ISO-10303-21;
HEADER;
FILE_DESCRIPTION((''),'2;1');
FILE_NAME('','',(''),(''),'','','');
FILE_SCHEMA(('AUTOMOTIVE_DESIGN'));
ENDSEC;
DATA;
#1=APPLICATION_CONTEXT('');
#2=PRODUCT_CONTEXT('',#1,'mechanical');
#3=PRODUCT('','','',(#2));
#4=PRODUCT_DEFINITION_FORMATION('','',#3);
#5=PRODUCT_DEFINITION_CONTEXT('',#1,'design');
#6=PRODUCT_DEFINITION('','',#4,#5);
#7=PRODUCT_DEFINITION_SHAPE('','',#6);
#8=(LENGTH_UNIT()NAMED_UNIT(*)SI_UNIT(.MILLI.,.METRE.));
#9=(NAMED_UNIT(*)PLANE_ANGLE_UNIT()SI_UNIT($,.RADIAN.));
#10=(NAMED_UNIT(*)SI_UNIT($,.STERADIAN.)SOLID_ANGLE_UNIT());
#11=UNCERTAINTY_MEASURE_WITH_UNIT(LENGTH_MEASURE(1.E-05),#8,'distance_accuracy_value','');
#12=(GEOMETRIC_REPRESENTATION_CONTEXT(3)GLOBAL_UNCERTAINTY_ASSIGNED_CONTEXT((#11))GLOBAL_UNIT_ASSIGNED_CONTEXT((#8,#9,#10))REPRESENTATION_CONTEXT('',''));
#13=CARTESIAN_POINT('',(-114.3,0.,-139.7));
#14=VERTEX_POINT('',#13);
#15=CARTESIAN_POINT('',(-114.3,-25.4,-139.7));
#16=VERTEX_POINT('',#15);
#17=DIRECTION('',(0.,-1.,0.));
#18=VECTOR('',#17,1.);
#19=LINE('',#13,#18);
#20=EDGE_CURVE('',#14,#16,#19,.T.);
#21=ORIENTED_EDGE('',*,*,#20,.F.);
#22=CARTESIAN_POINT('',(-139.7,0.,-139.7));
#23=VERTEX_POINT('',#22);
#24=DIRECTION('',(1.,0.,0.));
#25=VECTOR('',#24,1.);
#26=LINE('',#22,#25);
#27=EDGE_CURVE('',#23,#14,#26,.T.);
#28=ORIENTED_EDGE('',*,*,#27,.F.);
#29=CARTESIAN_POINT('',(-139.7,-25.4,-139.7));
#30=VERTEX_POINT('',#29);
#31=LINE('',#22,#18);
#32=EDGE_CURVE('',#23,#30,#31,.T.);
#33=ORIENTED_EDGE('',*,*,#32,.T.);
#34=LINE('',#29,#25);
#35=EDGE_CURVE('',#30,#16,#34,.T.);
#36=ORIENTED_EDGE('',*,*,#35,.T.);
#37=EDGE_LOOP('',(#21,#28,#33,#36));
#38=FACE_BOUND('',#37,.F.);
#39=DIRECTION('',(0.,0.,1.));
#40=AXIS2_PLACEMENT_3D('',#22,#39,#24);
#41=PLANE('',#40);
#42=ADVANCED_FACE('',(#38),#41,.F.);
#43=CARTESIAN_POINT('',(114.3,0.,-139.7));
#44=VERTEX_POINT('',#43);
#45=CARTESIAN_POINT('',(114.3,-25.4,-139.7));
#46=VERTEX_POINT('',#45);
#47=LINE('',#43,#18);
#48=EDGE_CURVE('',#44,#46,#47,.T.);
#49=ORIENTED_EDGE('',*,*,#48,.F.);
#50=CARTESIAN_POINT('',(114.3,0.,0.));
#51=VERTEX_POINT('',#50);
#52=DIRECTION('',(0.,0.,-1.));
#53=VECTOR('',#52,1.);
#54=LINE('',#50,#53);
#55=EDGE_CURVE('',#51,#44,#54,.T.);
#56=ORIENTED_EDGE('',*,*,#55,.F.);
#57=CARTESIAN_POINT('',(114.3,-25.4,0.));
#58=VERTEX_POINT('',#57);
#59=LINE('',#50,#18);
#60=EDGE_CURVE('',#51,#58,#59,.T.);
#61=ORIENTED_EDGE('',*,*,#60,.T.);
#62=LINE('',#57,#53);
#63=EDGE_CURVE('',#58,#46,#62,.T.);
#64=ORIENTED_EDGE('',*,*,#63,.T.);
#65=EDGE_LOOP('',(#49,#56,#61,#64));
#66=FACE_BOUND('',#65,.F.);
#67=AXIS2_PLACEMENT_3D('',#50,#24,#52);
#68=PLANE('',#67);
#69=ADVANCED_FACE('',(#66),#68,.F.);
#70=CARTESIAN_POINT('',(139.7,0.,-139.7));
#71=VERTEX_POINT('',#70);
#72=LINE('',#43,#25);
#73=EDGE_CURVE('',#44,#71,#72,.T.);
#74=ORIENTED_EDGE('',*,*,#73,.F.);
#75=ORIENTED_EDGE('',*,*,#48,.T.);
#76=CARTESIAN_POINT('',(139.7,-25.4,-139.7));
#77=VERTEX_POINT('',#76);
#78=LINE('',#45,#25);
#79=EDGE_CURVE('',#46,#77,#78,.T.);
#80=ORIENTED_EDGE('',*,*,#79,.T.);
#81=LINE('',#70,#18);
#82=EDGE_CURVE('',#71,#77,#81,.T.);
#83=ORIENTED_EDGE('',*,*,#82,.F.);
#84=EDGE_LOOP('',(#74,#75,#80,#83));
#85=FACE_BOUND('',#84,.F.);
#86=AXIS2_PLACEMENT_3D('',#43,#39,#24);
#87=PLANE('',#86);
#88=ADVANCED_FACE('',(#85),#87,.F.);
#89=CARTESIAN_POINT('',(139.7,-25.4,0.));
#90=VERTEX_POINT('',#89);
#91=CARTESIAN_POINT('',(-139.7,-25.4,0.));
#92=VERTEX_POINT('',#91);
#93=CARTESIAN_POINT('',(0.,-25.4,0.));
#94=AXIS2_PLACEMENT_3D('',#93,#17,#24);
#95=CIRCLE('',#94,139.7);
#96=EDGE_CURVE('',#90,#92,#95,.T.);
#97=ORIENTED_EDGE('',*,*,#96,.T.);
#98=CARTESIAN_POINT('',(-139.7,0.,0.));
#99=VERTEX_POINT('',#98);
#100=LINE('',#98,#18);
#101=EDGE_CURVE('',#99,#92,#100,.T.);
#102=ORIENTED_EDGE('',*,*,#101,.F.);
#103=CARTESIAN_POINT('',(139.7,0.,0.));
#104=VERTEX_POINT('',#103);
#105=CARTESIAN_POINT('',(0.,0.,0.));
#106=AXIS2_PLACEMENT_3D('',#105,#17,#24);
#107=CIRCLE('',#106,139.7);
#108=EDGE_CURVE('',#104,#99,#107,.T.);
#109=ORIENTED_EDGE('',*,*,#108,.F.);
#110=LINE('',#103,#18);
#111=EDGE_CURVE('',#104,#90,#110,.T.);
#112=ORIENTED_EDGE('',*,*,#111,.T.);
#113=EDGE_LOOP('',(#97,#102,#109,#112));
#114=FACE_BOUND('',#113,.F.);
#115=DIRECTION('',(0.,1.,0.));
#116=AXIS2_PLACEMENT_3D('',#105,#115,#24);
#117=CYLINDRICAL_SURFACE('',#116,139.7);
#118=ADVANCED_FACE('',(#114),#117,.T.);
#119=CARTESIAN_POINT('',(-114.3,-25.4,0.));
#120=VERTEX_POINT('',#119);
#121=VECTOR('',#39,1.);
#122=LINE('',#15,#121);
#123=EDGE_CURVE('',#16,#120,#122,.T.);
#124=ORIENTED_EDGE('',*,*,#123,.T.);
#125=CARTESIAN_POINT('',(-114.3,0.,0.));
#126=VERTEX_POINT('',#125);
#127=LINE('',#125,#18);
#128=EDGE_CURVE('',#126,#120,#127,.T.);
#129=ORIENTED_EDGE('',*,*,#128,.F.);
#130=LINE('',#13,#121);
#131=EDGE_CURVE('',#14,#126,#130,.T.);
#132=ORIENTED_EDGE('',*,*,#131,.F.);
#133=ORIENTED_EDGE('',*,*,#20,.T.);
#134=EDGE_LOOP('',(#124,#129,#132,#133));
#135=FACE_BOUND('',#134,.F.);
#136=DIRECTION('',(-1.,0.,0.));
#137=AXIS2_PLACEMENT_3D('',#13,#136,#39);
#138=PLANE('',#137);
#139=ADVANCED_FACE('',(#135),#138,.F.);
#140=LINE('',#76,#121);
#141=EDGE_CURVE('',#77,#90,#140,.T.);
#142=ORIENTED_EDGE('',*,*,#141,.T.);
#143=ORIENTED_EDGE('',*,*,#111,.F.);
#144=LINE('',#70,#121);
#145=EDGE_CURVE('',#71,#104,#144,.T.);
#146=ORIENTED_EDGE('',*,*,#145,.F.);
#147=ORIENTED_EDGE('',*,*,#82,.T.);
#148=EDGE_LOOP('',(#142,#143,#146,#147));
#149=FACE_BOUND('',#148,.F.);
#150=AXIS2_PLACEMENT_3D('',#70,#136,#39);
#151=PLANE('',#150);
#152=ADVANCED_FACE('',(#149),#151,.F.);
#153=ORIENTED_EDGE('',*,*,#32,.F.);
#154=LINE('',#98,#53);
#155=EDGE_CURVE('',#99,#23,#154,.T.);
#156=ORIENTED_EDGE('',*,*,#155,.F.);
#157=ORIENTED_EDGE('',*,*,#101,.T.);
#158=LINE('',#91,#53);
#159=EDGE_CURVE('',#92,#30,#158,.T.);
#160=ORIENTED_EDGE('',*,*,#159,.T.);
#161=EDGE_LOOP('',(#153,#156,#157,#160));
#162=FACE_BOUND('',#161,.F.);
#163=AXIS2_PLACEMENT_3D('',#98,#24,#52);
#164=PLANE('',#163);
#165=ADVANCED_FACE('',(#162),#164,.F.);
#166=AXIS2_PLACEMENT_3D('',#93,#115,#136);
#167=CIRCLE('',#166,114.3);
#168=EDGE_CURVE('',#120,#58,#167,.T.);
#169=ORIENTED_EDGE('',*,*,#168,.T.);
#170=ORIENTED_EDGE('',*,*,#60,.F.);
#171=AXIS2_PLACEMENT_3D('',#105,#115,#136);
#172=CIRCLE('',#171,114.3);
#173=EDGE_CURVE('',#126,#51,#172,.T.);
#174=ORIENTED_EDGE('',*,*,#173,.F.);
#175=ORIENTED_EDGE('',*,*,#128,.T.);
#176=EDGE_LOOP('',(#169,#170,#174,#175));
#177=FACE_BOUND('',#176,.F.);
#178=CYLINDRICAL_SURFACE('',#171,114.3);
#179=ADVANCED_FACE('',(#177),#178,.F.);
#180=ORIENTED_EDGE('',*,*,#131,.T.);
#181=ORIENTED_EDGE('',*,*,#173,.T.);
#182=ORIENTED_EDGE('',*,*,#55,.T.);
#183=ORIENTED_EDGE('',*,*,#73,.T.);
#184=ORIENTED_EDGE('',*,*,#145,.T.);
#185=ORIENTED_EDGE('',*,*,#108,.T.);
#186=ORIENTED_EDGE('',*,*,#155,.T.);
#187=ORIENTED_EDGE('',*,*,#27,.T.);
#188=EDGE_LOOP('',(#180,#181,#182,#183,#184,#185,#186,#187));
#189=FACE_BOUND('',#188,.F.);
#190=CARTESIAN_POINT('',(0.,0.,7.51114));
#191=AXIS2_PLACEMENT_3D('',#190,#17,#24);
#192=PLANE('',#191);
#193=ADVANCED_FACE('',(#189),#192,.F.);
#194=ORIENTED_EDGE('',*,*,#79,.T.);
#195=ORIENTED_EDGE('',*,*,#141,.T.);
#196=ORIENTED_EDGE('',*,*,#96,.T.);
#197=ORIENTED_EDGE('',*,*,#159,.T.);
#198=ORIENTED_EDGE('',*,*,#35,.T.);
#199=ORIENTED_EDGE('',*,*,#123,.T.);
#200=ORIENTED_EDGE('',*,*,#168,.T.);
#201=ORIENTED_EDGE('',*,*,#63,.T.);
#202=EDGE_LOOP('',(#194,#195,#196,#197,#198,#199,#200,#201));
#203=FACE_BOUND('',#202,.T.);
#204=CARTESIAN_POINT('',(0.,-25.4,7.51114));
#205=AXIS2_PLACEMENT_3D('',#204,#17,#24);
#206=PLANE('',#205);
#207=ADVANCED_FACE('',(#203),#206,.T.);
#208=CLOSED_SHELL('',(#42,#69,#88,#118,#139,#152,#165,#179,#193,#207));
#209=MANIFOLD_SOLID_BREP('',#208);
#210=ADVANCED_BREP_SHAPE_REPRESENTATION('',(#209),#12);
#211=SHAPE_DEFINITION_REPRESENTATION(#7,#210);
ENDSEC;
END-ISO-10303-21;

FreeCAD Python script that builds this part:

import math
import FreeCAD as App
import Part
import Sketcher
from FreeCAD import Vector
Q = App.Units.Quantity

doc = App.newDocument("Part")
body = doc.addObject("PartDesign::Body", "Body")

# Sketch on XZ plane
sketch1 = body.newObject("Sketcher::SketchObject", "Sketch")
sketch1.AttachmentSupport = (doc.getObject("XZ_Plane"), [""])
sketch1.MapMode = "FlatFace"
sketch1.addGeometry(Part.LineSegment(Vector(140, -140, 0), Vector(140, 0, 0)), False)
sketch1.addGeometry(Part.ArcOfCircle(Part.Circle(Vector(0, 0, 0), Vector(0, 0, 1), 140), math.radians(0), math.radians(180)), False)
sketch1.addGeometry(Part.LineSegment(Vector(-140, 0, 0), Vector(-140, -140, 0)), False)
sketch1.addGeometry(Part.LineSegment(Vector(-140, -140, 0), Vector(-114, -140, 0)), False)
sketch1.addGeometry(Part.LineSegment(Vector(-114, -140, 0), Vector(-114, 0, 0)), False)
sketch1.addGeometry(Part.ArcOfCircle(Part.Circle(Vector(0, 0, 0), Vector(0, 0, 1), 114), math.radians(0), math.radians(180)), False)
sketch1.addGeometry(Part.LineSegment(Vector(114, 0, 0), Vector(114, -140, 0)), False)
sketch1.addGeometry(Part.LineSegment(Vector(114, -140, 0), Vector(140, -140, 0)), False)
sketch1.addConstraint(Sketcher.Constraint("Tangent", 0, 2, 1, 1))
sketch1.addConstraint(Sketcher.Constraint("Tangent", 1, 2, 2, 1))
sketch1.addConstraint(Sketcher.Constraint("Coincident", 2, 2, 3, 1))
sketch1.addConstraint(Sketcher.Constraint("Coincident", 3, 2, 4, 1))
sketch1.addConstraint(Sketcher.Constraint("Tangent", 4, 2, 5, 2))
sketch1.addConstraint(Sketcher.Constraint("Tangent", 5, 1, 6, 1))
sketch1.addConstraint(Sketcher.Constraint("Coincident", 6, 2, 7, 1))
sketch1.addConstraint(Sketcher.Constraint("Coincident", 7, 2, 0, 1))
sketch1.addConstraint(Sketcher.Constraint("Vertical", 0))
sketch1.addConstraint(Sketcher.Constraint("Vertical", 2))
sketch1.addConstraint(Sketcher.Constraint("Horizontal", 3))
sketch1.addConstraint(Sketcher.Constraint("Vertical", 4))
sketch1.addConstraint(Sketcher.Constraint("Vertical", 6))
sketch1.addConstraint(Sketcher.Constraint("Horizontal", 7))
sketch1.addConstraint(Sketcher.Constraint("Coincident", 1, 3, -1, 1))
sketch1.addConstraint(Sketcher.Constraint("Coincident", 5, 3, -1, 1))
sketch1.addConstraint(Sketcher.Constraint("Horizontal", 3, 2, 6, 2))
sketch1.addConstraint(Sketcher.Constraint("Radius", 1, Q("5.5 in")))
sketch1.addConstraint(Sketcher.Constraint("Radius", 5, Q("4.5 in")))
sketch1.addConstraint(Sketcher.Constraint("DistanceY", 0, 1, 0, 2, Q("5.5 in")))
pad1 = body.newObject("PartDesign::Pad", "Pad")
pad1.Profile = sketch1
pad1.Length = Q("1 in")

doc.recompute()
